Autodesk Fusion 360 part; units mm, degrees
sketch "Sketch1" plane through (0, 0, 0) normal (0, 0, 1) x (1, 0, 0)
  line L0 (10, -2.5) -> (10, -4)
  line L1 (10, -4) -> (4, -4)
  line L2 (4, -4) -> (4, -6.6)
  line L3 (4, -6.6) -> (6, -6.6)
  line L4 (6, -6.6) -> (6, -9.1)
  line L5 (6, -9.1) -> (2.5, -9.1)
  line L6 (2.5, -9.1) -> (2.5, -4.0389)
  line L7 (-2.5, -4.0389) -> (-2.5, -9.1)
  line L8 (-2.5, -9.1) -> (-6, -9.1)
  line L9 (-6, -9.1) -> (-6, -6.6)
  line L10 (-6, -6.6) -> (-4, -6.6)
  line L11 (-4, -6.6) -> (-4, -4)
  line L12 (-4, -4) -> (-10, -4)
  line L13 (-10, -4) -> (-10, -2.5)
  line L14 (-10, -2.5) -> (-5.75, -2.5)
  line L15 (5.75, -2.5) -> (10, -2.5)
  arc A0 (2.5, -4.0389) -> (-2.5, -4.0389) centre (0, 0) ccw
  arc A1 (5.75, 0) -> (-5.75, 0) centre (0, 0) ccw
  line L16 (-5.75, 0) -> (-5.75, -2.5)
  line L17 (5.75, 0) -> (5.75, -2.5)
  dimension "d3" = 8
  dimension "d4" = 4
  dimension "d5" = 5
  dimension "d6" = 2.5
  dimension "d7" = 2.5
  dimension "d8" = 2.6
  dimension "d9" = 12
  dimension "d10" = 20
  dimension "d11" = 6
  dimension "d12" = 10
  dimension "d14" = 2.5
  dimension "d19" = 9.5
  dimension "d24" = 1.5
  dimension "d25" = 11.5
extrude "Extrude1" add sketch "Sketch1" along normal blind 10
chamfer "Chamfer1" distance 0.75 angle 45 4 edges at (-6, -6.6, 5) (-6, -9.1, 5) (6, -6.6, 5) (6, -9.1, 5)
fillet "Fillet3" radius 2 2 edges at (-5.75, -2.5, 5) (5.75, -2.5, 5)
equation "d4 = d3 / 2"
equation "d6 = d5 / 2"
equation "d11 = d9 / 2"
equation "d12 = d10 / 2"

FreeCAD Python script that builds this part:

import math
import FreeCAD as App
import Part
import Sketcher

V = App.Vector


def edges_at(feature, points):
    """Names of the edges that pass closest to the given points."""
    edges = feature.Shape.Edges
    near = lambda p: min(range(len(edges)), key=lambda i: edges[i].distToShape(Part.Vertex(*p))[0])
    return sorted({f"Edge{near(p) + 1}" for p in points})

doc = App.newDocument("Part")
body = doc.addObject("PartDesign::Body", "Body")

# Sketch on XY plane
sketch1 = body.newObject("Sketcher::SketchObject", "Sketch")
sketch1.AttachmentSupport = (doc.getObject("XY_Plane"), [""])
sketch1.MapMode = "FlatFace"
sketch1.addGeometry([
    Part.LineSegment(V(10, -4, 0), V(10, -2.5, 0)),  # 0
    Part.LineSegment(V(10, -2.5, 0), V(5.75, -2.5, 0)),  # 1
    Part.LineSegment(V(5.75, -2.5, 0), V(5.75, 0, 0)),  # 2
    Part.ArcOfCircle(Part.Circle(V(0, 0, 0), V(0, 0, 1), 5.75), math.radians(0), math.radians(180)),  # 3
    Part.LineSegment(V(-5.75, 0, 0), V(-5.75, -2.5, 0)),  # 4
    Part.LineSegment(V(-5.75, -2.5, 0), V(-10, -2.5, 0)),  # 5
    Part.LineSegment(V(-10, -2.5, 0), V(-10, -4, 0)),  # 6
    Part.LineSegment(V(-10, -4, 0), V(-4, -4, 0)),  # 7
    Part.LineSegment(V(-4, -4, 0), V(-4, -6.6, 0)),  # 8
    Part.LineSegment(V(-4, -6.6, 0), V(-6, -6.6, 0)),  # 9
    Part.LineSegment(V(-6, -6.6, 0), V(-6, -9.1, 0)),  # 10
    Part.LineSegment(V(-6, -9.1, 0), V(-2.5, -9.1, 0)),  # 11
    Part.LineSegment(V(-2.5, -9.1, 0), V(-2.5, -4.0389, 0)),  # 12
    Part.ArcOfCircle(Part.Circle(V(0, 0, 0), V(0, 0, 1), 4.750022), math.radians(-58.243304), math.radians(238.243304)),  # 13
    Part.LineSegment(V(2.5, -4.0389, 0), V(2.5, -9.1, 0)),  # 14
    Part.LineSegment(V(2.5, -9.1, 0), V(6, -9.1, 0)),  # 15
    Part.LineSegment(V(6, -9.1, 0), V(6, -6.6, 0)),  # 16
    Part.LineSegment(V(6, -6.6, 0), V(4, -6.6, 0)),  # 17
    Part.LineSegment(V(4, -6.6, 0), V(4, -4, 0)),  # 18
    Part.LineSegment(V(4, -4, 0), V(10, -4, 0)),  # 19
], False)
sketch1.addConstraint([
    Sketcher.Constraint("Coincident", 0, 2, 1, 1),
    Sketcher.Constraint("Coincident", 1, 2, 2, 1),
    Sketcher.Constraint("Tangent", 2, 2, 3, 1),
    Sketcher.Constraint("Tangent", 3, 2, 4, 1),
    Sketcher.Constraint("Coincident", 4, 2, 5, 1),
    Sketcher.Constraint("Coincident", 5, 2, 6, 1),
    Sketcher.Constraint("Coincident", 6, 2, 7, 1),
    Sketcher.Constraint("Coincident", 7, 2, 8, 1),
    Sketcher.Constraint("Coincident", 8, 2, 9, 1),
    Sketcher.Constraint("Coincident", 9, 2, 10, 1),
    Sketcher.Constraint("Coincident", 10, 2, 11, 1),
    Sketcher.Constraint("Coincident", 11, 2, 12, 1),
    Sketcher.Constraint("Coincident", 12, 2, 13, 2),
    Sketcher.Constraint("Coincident", 13, 1, 14, 1),
    Sketcher.Constraint("Coincident", 14, 2, 15, 1),
    Sketcher.Constraint("Coincident", 15, 2, 16, 1),
    Sketcher.Constraint("Coincident", 16, 2, 17, 1),
    Sketcher.Constraint("Coincident", 17, 2, 18, 1),
    Sketcher.Constraint("Coincident", 18, 2, 19, 1),
    Sketcher.Constraint("Coincident", 19, 2, 0, 1),
    Sketcher.Constraint("Vertical", 0),
    Sketcher.Constraint("Horizontal", 1),
    Sketcher.Constraint("Vertical", 2),
    Sketcher.Constraint("Vertical", 4),
    Sketcher.Constraint("Horizontal", 5),
    Sketcher.Constraint("Vertical", 6),
    Sketcher.Constraint("Horizontal", 7),
    Sketcher.Constraint("Vertical", 8),
    Sketcher.Constraint("Horizontal", 9),
    Sketcher.Constraint("Vertical", 10),
    Sketcher.Constraint("Horizontal", 11),
    Sketcher.Constraint("Vertical", 12),
    Sketcher.Constraint("Vertical", 14),
    Sketcher.Constraint("Horizontal", 15),
    Sketcher.Constraint("Vertical", 16),
    Sketcher.Constraint("Horizontal", 17),
    Sketcher.Constraint("Vertical", 18),
    Sketcher.Constraint("Horizontal", 19),
    Sketcher.Constraint("Coincident", 3, 3, -1, 1),
    Sketcher.Constraint("Coincident", 13, 3, -1, 1),
    Sketcher.Constraint("Symmetric", 0, 2, 5, 2, -2),
    Sketcher.Constraint("Symmetric", 11, 2, 14, 2, -2),
    Sketcher.Constraint("Symmetric", 9, 2, 16, 2, -2),
    Sketcher.Constraint("Symmetric", 7, 2, 18, 2, -2),
    Sketcher.Constraint("Equal", 4, 10),
    Sketcher.Constraint("DistanceX", 7, 1, 7, 2, 6.0),
    Sketcher.Constraint("Radius", 3, 5.75),
    Sketcher.Constraint("Radius", 13, 4.75),
    Sketcher.Constraint("DistanceY", 0, 1, 0, 2, 1.5),
    Sketcher.Constraint("DistanceY", 2, 1, 2, 2, 2.5),
    Sketcher.Constraint("DistanceY", 8, 2, 8, 1, 2.6),
    Sketcher.Constraint("DistanceX", -1, 1, 0, 2, 10.0),
    Sketcher.Constraint("DistanceX", 9, 2, -1, 1, 6.0),
    Sketcher.Constraint("DistanceX", 12, 2, 13, 1, 5.0),
])
pad1 = body.newObject("PartDesign::Pad", "Pad")
pad1.Profile = sketch1
pad1.Length = 10
doc.recompute()

chamfer = body.newObject("PartDesign::Chamfer", "Chamfer")
chamfer.Base = (pad1, edges_at(pad1, [
    (-6, -6.6, 5),
    (-6, -9.1, 5),
    (6, -6.6, 5),
    (6, -9.1, 5),
]))
chamfer.Size = 0.75
doc.recompute()

fillet = body.newObject("PartDesign::Fillet", "Fillet")
fillet.Base = (chamfer, edges_at(chamfer, [(-5.75, -2.5, 5), (5.75, -2.5, 5)]))
fillet.Radius = 2

doc.recompute()
